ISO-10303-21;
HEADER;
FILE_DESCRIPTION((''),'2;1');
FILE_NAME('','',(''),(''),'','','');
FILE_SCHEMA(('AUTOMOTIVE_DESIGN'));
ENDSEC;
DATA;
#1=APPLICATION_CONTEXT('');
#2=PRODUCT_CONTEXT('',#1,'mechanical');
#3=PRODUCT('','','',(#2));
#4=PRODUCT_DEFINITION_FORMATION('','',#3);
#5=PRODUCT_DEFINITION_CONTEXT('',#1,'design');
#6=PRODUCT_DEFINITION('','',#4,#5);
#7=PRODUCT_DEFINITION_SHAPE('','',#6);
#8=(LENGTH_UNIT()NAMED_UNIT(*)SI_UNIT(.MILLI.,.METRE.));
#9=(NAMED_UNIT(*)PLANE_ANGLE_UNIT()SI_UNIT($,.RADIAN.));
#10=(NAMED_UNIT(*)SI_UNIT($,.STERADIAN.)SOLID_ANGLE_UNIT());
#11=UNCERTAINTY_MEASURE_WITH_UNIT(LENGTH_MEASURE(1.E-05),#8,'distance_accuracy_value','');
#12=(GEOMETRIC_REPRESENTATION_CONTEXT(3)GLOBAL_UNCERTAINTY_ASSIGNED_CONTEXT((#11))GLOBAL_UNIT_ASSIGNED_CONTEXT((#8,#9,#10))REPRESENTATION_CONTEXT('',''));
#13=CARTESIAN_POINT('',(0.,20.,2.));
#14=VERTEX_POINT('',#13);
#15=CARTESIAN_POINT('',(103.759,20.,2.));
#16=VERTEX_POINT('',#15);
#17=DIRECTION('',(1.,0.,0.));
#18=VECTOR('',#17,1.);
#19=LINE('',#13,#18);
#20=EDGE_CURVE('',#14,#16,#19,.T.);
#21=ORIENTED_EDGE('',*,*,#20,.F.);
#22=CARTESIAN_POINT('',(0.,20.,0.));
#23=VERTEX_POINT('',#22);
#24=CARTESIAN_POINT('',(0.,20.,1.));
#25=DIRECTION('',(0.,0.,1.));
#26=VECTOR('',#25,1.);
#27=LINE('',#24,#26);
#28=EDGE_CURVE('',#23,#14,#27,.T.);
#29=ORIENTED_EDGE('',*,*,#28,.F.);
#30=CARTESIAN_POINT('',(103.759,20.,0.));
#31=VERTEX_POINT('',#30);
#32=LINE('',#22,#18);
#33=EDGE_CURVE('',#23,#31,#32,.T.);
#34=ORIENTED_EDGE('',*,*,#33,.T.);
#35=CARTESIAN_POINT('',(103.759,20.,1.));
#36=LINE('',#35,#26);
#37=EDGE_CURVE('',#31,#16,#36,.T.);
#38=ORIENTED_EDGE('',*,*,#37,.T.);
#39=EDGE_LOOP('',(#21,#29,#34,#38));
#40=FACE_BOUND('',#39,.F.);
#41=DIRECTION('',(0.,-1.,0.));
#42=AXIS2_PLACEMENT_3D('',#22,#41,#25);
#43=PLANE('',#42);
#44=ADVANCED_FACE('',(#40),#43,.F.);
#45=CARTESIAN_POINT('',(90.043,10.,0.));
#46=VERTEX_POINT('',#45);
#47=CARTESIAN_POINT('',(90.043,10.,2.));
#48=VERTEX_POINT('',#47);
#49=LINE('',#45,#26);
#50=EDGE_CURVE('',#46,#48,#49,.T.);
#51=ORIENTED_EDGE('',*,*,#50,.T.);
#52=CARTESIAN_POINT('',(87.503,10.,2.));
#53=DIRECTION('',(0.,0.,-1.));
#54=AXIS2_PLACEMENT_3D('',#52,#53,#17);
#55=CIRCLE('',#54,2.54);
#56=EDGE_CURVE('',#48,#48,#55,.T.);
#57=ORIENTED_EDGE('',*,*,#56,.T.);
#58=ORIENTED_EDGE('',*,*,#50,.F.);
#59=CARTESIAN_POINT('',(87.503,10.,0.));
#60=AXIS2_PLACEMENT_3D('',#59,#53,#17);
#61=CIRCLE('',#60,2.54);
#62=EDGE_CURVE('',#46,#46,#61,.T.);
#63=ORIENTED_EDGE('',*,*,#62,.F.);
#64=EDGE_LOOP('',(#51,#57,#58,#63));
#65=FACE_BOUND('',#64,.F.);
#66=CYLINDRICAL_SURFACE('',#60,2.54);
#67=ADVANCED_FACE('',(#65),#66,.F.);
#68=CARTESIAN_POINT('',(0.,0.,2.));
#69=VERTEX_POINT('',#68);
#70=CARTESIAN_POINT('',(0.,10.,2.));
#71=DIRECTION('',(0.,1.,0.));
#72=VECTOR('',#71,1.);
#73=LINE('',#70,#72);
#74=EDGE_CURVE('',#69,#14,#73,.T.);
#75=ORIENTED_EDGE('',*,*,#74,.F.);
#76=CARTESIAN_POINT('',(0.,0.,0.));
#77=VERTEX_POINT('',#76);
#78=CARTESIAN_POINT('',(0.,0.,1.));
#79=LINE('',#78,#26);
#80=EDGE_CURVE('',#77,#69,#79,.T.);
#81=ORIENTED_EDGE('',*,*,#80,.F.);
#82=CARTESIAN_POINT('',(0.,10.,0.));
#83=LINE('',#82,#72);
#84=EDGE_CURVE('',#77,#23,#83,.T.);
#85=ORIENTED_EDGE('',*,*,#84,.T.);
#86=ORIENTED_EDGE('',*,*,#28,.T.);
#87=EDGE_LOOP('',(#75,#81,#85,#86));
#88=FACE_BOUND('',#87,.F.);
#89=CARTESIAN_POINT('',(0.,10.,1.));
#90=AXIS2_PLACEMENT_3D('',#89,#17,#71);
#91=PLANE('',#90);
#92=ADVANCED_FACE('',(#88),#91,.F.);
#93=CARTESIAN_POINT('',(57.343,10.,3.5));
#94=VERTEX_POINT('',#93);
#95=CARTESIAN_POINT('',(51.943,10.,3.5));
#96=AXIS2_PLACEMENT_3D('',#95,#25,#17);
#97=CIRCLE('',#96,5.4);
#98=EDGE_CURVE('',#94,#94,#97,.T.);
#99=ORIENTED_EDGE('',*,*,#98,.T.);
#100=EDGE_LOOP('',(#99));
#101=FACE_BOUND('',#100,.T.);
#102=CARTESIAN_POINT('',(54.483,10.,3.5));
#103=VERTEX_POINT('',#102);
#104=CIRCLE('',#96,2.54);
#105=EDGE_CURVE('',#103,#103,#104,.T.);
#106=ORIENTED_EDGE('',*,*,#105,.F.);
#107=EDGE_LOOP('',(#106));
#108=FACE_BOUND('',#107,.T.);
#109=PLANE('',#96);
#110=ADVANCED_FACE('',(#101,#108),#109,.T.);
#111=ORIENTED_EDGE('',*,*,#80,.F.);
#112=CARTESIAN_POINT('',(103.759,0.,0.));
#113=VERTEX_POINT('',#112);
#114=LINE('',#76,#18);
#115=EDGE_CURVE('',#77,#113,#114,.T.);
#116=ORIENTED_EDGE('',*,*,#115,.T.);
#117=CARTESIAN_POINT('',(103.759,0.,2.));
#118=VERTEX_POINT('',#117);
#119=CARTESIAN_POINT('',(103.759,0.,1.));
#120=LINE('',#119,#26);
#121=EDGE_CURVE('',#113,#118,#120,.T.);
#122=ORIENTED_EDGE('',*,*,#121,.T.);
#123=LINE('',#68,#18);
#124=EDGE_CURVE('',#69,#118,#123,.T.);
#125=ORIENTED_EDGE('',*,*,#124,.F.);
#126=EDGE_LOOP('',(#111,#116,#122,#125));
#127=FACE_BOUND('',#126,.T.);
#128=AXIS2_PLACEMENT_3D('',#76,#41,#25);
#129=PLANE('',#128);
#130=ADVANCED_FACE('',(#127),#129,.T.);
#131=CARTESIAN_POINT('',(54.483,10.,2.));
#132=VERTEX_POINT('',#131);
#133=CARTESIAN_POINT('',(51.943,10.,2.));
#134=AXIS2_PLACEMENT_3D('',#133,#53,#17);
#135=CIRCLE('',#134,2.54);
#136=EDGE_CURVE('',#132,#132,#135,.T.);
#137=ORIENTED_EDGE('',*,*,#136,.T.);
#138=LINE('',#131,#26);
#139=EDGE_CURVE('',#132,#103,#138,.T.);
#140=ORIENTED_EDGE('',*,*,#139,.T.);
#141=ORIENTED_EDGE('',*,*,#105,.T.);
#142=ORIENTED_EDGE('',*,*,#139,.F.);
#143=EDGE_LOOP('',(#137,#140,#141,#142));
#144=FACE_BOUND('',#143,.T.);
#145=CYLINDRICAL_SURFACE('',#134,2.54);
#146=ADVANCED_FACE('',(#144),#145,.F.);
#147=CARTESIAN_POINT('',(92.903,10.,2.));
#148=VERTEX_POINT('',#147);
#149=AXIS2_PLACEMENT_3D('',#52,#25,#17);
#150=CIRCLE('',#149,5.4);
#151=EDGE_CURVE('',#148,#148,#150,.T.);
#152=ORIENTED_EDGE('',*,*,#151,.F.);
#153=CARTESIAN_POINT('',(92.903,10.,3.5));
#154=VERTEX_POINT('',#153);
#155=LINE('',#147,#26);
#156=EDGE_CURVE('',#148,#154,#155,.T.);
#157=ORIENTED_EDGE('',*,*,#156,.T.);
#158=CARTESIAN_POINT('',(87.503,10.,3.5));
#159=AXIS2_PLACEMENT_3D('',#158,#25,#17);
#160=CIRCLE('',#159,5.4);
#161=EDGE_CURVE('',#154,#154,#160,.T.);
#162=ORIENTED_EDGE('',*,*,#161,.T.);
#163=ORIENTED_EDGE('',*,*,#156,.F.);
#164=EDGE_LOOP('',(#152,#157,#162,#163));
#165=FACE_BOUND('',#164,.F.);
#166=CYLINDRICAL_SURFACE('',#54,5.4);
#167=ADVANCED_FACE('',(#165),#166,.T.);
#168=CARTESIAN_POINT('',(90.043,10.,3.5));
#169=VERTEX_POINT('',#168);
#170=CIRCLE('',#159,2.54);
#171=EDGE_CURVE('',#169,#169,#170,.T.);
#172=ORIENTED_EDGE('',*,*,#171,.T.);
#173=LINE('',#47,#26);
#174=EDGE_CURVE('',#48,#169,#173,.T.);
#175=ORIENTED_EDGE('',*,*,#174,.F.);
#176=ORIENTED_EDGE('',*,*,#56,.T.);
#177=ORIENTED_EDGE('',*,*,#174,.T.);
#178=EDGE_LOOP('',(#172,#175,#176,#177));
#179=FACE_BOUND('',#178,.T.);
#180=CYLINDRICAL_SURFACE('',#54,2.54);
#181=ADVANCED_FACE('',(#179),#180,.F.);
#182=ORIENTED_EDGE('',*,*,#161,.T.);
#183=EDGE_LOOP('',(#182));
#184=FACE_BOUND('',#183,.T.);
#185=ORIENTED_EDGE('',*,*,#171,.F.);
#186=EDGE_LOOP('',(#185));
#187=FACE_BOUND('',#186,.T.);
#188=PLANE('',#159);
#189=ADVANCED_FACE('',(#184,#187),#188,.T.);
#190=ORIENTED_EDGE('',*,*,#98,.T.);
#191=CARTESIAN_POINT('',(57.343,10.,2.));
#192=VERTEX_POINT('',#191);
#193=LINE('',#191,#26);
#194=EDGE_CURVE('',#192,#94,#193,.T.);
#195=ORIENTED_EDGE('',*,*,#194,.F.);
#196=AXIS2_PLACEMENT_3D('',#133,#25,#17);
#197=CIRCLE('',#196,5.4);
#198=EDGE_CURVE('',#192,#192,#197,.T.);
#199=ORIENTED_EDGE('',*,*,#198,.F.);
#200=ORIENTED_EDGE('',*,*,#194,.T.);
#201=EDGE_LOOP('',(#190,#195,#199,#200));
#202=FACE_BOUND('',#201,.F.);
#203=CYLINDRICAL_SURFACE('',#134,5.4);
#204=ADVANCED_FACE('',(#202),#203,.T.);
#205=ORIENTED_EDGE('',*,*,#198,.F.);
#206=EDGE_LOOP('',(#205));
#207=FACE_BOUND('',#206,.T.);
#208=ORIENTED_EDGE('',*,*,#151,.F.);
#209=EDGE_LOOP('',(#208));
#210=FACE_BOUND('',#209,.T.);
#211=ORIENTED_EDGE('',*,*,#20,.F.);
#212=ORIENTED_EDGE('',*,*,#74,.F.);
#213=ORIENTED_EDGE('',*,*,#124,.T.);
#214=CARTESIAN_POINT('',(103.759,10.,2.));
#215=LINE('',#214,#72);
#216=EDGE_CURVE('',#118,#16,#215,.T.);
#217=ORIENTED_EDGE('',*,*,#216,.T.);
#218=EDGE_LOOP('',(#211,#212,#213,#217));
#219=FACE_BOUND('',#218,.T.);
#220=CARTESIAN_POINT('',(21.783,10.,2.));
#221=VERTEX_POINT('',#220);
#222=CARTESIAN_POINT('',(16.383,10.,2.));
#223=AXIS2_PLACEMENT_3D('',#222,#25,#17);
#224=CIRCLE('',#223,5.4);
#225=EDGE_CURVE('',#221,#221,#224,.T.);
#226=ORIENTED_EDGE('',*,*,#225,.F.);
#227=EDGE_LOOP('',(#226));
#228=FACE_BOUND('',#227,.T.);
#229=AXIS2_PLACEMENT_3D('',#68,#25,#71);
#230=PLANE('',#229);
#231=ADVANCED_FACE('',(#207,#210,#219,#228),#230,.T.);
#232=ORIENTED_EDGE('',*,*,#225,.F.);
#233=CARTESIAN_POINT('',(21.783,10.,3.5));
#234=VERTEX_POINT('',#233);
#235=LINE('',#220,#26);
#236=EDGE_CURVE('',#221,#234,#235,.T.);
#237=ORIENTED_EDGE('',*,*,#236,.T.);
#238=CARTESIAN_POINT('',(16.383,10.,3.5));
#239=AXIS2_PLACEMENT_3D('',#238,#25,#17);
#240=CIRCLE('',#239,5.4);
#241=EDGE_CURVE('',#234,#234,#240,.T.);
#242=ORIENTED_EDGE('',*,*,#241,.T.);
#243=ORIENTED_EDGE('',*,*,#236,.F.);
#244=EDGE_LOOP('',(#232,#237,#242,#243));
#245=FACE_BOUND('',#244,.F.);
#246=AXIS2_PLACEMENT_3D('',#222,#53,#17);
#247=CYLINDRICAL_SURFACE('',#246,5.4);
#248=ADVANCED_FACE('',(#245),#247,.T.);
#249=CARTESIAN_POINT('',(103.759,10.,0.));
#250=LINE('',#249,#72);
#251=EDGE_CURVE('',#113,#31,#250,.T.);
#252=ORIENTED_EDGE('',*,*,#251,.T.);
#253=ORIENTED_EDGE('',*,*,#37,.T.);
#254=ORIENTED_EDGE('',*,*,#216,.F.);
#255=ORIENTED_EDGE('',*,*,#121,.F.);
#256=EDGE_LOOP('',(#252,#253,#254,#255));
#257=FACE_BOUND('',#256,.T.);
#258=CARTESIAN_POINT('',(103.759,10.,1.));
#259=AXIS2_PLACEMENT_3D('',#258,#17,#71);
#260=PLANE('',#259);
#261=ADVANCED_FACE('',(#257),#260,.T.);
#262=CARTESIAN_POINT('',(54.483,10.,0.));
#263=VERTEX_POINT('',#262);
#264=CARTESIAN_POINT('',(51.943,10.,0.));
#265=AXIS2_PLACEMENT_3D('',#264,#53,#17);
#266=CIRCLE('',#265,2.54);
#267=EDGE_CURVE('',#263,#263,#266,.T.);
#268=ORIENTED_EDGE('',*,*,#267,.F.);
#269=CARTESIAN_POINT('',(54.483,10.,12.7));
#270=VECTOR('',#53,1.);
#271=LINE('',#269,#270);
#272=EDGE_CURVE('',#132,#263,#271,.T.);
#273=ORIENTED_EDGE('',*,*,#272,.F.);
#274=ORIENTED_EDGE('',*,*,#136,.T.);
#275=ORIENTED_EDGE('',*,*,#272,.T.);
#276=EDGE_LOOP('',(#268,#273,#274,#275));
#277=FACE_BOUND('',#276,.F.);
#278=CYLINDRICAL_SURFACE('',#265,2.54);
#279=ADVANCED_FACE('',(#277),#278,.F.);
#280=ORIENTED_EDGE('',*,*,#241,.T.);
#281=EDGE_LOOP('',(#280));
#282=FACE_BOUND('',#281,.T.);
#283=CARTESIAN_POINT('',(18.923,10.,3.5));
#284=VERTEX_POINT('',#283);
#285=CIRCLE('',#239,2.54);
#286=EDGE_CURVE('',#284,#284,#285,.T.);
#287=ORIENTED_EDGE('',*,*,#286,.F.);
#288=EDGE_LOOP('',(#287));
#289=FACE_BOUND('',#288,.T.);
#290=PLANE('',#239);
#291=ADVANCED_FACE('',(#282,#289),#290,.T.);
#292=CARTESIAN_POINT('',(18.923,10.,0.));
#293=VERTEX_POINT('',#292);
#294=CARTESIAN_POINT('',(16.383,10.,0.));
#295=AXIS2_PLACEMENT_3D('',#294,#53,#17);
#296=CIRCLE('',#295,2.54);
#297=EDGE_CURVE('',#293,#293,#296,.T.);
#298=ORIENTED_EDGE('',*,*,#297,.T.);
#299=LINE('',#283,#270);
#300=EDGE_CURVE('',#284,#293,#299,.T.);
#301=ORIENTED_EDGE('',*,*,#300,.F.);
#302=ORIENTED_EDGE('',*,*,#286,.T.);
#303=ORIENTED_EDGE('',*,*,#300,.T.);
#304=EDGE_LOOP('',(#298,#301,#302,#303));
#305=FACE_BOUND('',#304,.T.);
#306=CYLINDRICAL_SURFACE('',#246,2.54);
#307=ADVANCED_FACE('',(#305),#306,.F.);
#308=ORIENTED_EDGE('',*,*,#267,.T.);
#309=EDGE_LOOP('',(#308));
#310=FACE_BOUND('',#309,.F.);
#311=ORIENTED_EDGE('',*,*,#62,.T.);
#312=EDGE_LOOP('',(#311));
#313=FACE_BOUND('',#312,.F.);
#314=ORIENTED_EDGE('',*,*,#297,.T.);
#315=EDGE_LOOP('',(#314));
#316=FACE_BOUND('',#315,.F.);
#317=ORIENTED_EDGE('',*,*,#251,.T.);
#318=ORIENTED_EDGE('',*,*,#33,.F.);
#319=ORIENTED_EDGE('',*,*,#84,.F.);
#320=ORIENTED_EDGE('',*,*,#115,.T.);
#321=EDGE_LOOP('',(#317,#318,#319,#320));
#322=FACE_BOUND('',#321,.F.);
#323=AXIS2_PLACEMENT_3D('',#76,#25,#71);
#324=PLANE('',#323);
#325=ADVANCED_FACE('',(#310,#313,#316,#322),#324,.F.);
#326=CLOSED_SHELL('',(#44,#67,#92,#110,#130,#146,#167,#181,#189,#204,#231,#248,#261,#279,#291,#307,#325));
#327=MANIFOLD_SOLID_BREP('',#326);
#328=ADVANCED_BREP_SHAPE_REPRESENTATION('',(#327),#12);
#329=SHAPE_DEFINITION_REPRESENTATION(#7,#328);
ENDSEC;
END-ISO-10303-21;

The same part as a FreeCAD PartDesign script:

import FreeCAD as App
import Part
import Sketcher

doc = App.newDocument("Part")
body = doc.addObject("PartDesign::Body", "Body")

# Sketch on YZ plane
sketch1 = body.newObject("Sketcher::SketchObject", "Sketch")
sketch1.AttachmentSupport = (doc.getObject("YZ_Plane"), [""])
sketch1.MapMode = "FlatFace"
sketch1.addGeometry(Part.LineSegment(App.Vector(0, 2, 0), App.Vector(0, 0, 0)), False)
sketch1.addGeometry(Part.LineSegment(App.Vector(0, 0, 0), App.Vector(20, 0, 0)), False)
sketch1.addGeometry(Part.LineSegment(App.Vector(20, 0, 0), App.Vector(20, 2, 0)), False)
sketch1.addGeometry(Part.LineSegment(App.Vector(20, 2, 0), App.Vector(0, 2, 0)), False)
sketch1.addConstraint(Sketcher.Constraint("Coincident", 0, 2, 1, 1))
sketch1.addConstraint(Sketcher.Constraint("Coincident", 1, 2, 2, 1))
sketch1.addConstraint(Sketcher.Constraint("Coincident", 2, 2, 3, 1))
sketch1.addConstraint(Sketcher.Constraint("Coincident", 3, 2, 0, 1))
sketch1.addConstraint(Sketcher.Constraint("Vertical", 0))
sketch1.addConstraint(Sketcher.Constraint("Horizontal", 1))
sketch1.addConstraint(Sketcher.Constraint("Vertical", 2))
sketch1.addConstraint(Sketcher.Constraint("Horizontal", 3))
sketch1.addConstraint(Sketcher.Constraint("Coincident", 0, 2, -1, 1))
sketch1.addConstraint(Sketcher.Constraint("DistanceX", 1, 1, 1, 2, 20.0))
sketch1.addConstraint(Sketcher.Constraint("DistanceY", 0, 2, 0, 1, 2.0))
pad1 = body.newObject("PartDesign::Pad", "Pad")
pad1.Profile = sketch1
pad1.Length = 103.759

# Sketch on XY plane
sketch2 = body.newObject("Sketcher::SketchObject", "Sketch001")
sketch2.AttachmentSupport = (doc.getObject("XY_Plane"), [""])
sketch2.MapMode = "FlatFace"
sketch2.addGeometry(Part.Circle(App.Vector(87.503, 10, 0), App.Vector(0, 0, 1), 2.54), False)
sketch2.addGeometry(Part.Circle(App.Vector(16.383, 10, 0), App.Vector(0, 0, 1), 2.54), False)
sketch2.addGeometry(Part.Circle(App.Vector(51.943, 10, 0), App.Vector(0, 0, 1), 2.54), False)
sketch2.addConstraint(Sketcher.Constraint("Equal", 0, 1))
sketch2.addConstraint(Sketcher.Constraint("Equal", 1, 2))
sketch2.addConstraint(Sketcher.Constraint("Horizontal", 0, 3, 1, 3))
sketch2.addConstraint(Sketcher.Constraint("Horizontal", 1, 3, 2, 3))
sketch2.addConstraint(Sketcher.Constraint("Diameter", 0, 5.08))
sketch2.addConstraint(Sketcher.Constraint("DistanceY", -1, 1, 0, 3, 10.0))
sketch2.addConstraint(Sketcher.Constraint("DistanceX", 1, 3, 0, 3, 71.12))
sketch2.addConstraint(Sketcher.Constraint("DistanceX", 2, 3, 0, 3, 35.56))
sketch2.addConstraint(Sketcher.Constraint("DistanceX", -1, 1, 0, 3, 87.503))
pocket1 = body.newObject("PartDesign::Pocket", "Pocket")
pocket1.Profile = sketch2
pocket1.Length = 25.4
pocket1.Midplane = True

# Sketch on XY plane
sketch3 = body.newObject("Sketcher::SketchObject", "Sketch002")
sketch3.AttachmentSupport = (doc.getObject("XY_Plane"), [""])
sketch3.MapMode = "FlatFace"
sketch3.AttachmentOffset = App.Placement(App.Vector(0, 0, 2), App.Rotation())
sketch3.addGeometry(Part.Circle(App.Vector(16.383, 10, 0), App.Vector(0, 0, 1), 5.4), False)
sketch3.addGeometry(Part.Circle(App.Vector(16.383, 10, 0), App.Vector(0, 0, 1), 2.54), False)
sketch3.addGeometry(Part.Circle(App.Vector(51.943, 10, 0), App.Vector(0, 0, 1), 5.4), False)
sketch3.addGeometry(Part.Circle(App.Vector(51.943, 10, 0), App.Vector(0, 0, 1), 2.54), False)
sketch3.addGeometry(Part.Circle(App.Vector(87.503, 10, 0), App.Vector(0, 0, 1), 5.4), False)
sketch3.addGeometry(Part.Circle(App.Vector(87.503, 10, 0), App.Vector(0, 0, 1), 2.54), False)
sketch3.addConstraint(Sketcher.Constraint("Coincident", 1, 3, 0, 3))
sketch3.addConstraint(Sketcher.Constraint("Coincident", 3, 3, 2, 3))
sketch3.addConstraint(Sketcher.Constraint("Coincident", 5, 3, 4, 3))
sketch3.addConstraint(Sketcher.Constraint("Equal", 0, 2))
sketch3.addConstraint(Sketcher.Constraint("Equal", 1, 3))
sketch3.addConstraint(Sketcher.Constraint("Equal", 2, 4))
sketch3.addConstraint(Sketcher.Constraint("Equal", 3, 5))
sketch3.addConstraint(Sketcher.Constraint("Horizontal", 1, 3, 2, 3))
sketch3.addConstraint(Sketcher.Constraint("Horizontal", 3, 3, 4, 3))
sketch3.addConstraint(Sketcher.Constraint("Diameter", 0, 10.8))
sketch3.addConstraint(Sketcher.Constraint("Diameter", 1, 5.08))
sketch3.addConstraint(Sketcher.Constraint("DistanceY", -1, 1, 0, 3, 10.0))
sketch3.addConstraint(Sketcher.Constraint("DistanceX", 0, 3, 2, 3, 35.56))
sketch3.addConstraint(Sketcher.Constraint("DistanceX", 2, 3, 4, 3, 35.56))
sketch3.addConstraint(Sketcher.Constraint("DistanceX", -1, 1, 0, 3, 16.383))
pad2 = body.newObject("PartDesign::Pad", "Pad001")
pad2.Profile = sketch3
pad2.Length = 1.5

doc.recompute()
